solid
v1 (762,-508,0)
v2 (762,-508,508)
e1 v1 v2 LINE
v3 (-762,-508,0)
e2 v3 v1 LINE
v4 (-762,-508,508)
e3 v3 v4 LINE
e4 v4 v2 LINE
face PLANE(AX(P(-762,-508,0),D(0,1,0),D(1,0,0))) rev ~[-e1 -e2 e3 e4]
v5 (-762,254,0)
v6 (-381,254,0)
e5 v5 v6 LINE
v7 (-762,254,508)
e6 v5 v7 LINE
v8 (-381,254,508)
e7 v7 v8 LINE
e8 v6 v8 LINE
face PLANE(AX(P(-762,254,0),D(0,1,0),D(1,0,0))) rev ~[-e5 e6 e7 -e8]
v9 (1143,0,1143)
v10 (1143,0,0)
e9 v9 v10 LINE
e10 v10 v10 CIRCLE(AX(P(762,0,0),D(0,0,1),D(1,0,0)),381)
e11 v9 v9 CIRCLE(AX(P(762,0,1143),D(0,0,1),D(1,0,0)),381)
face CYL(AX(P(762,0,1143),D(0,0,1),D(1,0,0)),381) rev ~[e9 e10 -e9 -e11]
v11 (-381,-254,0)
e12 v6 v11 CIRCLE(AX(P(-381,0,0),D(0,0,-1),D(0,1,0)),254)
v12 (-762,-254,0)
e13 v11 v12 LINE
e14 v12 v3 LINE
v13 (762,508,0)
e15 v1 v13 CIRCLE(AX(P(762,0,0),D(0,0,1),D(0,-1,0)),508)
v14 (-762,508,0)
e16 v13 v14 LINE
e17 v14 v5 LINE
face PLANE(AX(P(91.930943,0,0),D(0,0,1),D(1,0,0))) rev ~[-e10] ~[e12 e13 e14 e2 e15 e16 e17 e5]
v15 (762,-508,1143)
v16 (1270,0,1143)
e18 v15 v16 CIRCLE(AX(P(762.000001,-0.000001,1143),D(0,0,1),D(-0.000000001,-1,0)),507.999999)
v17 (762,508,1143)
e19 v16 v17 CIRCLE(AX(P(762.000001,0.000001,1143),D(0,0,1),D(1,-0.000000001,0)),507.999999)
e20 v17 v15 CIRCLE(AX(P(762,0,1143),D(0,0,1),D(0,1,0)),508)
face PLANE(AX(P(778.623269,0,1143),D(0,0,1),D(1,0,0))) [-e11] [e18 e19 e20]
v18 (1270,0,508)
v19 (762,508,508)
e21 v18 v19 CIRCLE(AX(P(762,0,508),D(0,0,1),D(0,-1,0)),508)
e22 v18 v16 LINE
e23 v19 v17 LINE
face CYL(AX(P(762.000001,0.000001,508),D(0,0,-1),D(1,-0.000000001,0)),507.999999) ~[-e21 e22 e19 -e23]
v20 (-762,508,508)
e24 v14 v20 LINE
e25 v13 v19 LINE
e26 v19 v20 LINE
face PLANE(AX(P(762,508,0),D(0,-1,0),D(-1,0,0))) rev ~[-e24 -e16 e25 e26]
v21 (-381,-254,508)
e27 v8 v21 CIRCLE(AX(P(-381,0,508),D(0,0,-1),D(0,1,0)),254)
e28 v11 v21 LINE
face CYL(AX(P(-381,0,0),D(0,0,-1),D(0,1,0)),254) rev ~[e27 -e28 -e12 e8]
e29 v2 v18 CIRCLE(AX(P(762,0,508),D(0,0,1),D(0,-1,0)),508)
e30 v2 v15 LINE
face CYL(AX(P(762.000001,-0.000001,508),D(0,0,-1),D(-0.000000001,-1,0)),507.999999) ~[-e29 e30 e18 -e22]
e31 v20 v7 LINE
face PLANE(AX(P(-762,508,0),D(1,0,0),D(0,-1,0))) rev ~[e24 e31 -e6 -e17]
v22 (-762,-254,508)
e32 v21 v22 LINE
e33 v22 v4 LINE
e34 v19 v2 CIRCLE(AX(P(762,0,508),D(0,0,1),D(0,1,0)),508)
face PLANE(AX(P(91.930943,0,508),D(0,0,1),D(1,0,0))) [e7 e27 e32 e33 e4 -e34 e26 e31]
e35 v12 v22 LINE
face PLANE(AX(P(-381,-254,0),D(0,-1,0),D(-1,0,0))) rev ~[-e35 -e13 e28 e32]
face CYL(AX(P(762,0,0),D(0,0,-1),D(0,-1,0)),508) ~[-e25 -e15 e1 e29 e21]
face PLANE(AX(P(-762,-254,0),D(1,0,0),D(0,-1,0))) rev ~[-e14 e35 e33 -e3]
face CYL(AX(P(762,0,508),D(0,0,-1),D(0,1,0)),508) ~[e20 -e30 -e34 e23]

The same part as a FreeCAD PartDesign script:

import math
import FreeCAD as App
import Part
import Sketcher
Q = App.Units.Quantity

doc = App.newDocument("Part")
body = doc.addObject("PartDesign::Body", "Body")

sketch1 = body.newObject("Sketcher::SketchObject", "Sketch")
sketch1.AttachmentSupport = (doc.getObject("XY_Plane"), [""])
sketch1.MapMode = "FlatFace"
sketch1.addGeometry([
    Part.LineSegment(App.Vector(-762, -508, 0), App.Vector(762, -508, 0)),
    Part.ArcOfCircle(Part.Circle(App.Vector(762, 0, 0), App.Vector(0, 0, 1), 508), math.radians(-90), math.radians(90)),
    Part.LineSegment(App.Vector(762, 508, 0), App.Vector(-762, 508, 0)),
    Part.LineSegment(App.Vector(-762, 508, 0), App.Vector(-762, 254, 0)),
    Part.LineSegment(App.Vector(-762, 254, 0), App.Vector(-381, 254, 0)),
    Part.ArcOfCircle(Part.Circle(App.Vector(-381, 0, 0), App.Vector(0, 0, 1), 254), math.radians(-90), math.radians(90)),
    Part.LineSegment(App.Vector(-381, -254, 0), App.Vector(-762, -254, 0)),
    Part.LineSegment(App.Vector(-762, -254, 0), App.Vector(-762, -508, 0)),
], False)
sketch1.addConstraint([
    Sketcher.Constraint("Tangent", 0, 2, 1, 1),
    Sketcher.Constraint("Tangent", 1, 2, 2, 1),
    Sketcher.Constraint("Coincident", 2, 2, 3, 1),
    Sketcher.Constraint("Coincident", 3, 2, 4, 1),
    Sketcher.Constraint("Tangent", 4, 2, 5, 2),
    Sketcher.Constraint("Tangent", 5, 1, 6, 1),
    Sketcher.Constraint("Coincident", 6, 2, 7, 1),
    Sketcher.Constraint("Coincident", 7, 2, 0, 1),
    Sketcher.Constraint("Horizontal", 0),
    Sketcher.Constraint("Horizontal", 2),
    Sketcher.Constraint("Vertical", 3),
    Sketcher.Constraint("Horizontal", 4),
    Sketcher.Constraint("Horizontal", 6),
    Sketcher.Constraint("Vertical", 7),
    Sketcher.Constraint("Symmetric", 0, 2, 2, 2, -1, 1),
    Sketcher.Constraint("Symmetric", 3, 2, 6, 2, -1),
    Sketcher.Constraint("Radius", 1, Q("20 in")),
    Sketcher.Constraint("Radius", 5, Q("10 in")),
    Sketcher.Constraint("DistanceX", 0, 1, 0, 2, Q("60 in")),
    Sketcher.Constraint("DistanceX", 4, 1, 4, 2, Q("15 in")),
])
pad1 = body.newObject("PartDesign::Pad", "Pad")
pad1.Profile = sketch1
pad1.Length = Q("20 in")

sketch2 = body.newObject("Sketcher::SketchObject", "Sketch001")
sketch2.AttachmentSupport = (doc.getObject("XY_Plane"), [""])
sketch2.MapMode = "FlatFace"
sketch2.AttachmentOffset = App.Placement(App.Vector(0, 0, 20 * 25.4), App.Rotation())
sketch2.addGeometry([
    Part.ArcOfCircle(Part.Circle(App.Vector(762, 0, 0), App.Vector(0, 0, 1), 508), math.radians(-90), math.radians(0)),
    Part.ArcOfCircle(Part.Circle(App.Vector(762, 0, 0), App.Vector(0, 0, 1), 508), math.radians(0), math.radians(90)),
    Part.ArcOfCircle(Part.Circle(App.Vector(762, 0, 0), App.Vector(0, 0, 1), 508), math.radians(90), math.radians(270)),
], False)
sketch2.addConstraint([
    Sketcher.Constraint("Coincident", 0, 2, 1, 1),
    Sketcher.Constraint("Coincident", 1, 2, 2, 1),
    Sketcher.Constraint("Coincident", 2, 2, 0, 1),
    Sketcher.Constraint("Coincident", 1, 3, 0, 3),
    Sketcher.Constraint("Symmetric", 1, 2, 2, 2, -1),
    Sketcher.Constraint("PointOnObject", 0, 2, -1),
    Sketcher.Constraint("Vertical", 2, 3, 1, 2),
    Sketcher.Constraint("Radius", 0, Q("20 in")),
    Sketcher.Constraint("DistanceX", -1, 1, 0, 3, Q("30 in")),
    Sketcher.Constraint("DistanceX", -1, 1, 2, 3, Q("30 in")),
])
pad2 = body.newObject("PartDesign::Pad", "Pad001")
pad2.Profile = sketch2
pad2.Length = Q("25 in")

sketch3 = body.newObject("Sketcher::SketchObject", "Sketch002")
sketch3.AttachmentSupport = (doc.getObject("XY_Plane"), [""])
sketch3.MapMode = "FlatFace"
sketch3.AttachmentOffset = App.Placement(App.Vector(0, 0, 45 * 25.4), App.Rotation())
sketch3.addGeometry(Part.Circle(App.Vector(762, 0, 0), App.Vector(0, 0, 1), 381), False)
sketch3.addConstraint([
    Sketcher.Constraint("PointOnObject", 0, 3, -1),
    Sketcher.Constraint("Diameter", 0, Q("30 in")),
    Sketcher.Constraint("DistanceX", -1, 1, 0, 3, Q("30 in")),
])
pocket1 = body.newObject("PartDesign::Pocket", "Pocket")
pocket1.Profile = sketch3
pocket1.Length = Q("45 in")

doc.recompute()
